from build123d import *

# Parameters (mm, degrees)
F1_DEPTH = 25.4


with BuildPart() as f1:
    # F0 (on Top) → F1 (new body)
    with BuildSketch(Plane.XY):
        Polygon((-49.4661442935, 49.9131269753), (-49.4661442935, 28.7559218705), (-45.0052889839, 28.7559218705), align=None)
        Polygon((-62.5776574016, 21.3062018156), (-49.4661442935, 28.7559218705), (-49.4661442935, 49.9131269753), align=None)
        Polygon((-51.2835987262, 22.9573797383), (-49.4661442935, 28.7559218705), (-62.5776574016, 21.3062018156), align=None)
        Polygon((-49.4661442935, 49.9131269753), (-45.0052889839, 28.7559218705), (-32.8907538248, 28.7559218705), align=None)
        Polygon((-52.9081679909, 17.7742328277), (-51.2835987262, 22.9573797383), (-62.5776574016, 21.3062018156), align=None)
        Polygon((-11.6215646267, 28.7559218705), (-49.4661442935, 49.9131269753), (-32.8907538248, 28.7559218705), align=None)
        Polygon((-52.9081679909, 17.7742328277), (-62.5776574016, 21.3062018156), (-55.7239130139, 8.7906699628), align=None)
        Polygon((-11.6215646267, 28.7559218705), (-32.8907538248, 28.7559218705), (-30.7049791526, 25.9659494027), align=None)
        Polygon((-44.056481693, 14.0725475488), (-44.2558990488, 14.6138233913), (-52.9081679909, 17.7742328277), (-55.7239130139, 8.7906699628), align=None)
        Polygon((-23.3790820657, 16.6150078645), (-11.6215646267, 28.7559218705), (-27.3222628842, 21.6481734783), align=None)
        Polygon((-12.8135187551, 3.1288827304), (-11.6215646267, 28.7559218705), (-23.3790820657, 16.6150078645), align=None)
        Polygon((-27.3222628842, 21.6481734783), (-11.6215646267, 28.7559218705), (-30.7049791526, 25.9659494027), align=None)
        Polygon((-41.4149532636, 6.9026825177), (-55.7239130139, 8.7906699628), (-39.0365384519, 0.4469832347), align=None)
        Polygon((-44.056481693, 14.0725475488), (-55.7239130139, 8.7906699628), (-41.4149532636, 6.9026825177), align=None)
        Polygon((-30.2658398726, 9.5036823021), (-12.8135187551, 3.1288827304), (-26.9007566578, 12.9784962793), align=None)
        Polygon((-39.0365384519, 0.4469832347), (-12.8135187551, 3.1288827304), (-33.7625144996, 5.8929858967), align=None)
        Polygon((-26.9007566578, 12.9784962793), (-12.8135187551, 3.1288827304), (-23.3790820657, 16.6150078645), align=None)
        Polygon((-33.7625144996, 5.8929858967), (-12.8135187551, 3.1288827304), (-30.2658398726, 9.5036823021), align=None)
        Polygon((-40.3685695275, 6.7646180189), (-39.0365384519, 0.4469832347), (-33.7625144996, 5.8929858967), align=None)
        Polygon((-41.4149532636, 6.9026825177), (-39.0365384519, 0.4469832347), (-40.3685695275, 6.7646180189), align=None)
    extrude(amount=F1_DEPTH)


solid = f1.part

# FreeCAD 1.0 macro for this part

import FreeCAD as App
import Part
import Sketcher
from FreeCAD import Vector
Q = App.Units.Quantity

doc = App.newDocument("Part")
body = doc.addObject("PartDesign::Body", "Body")

sketch1 = body.newObject("Sketcher::SketchObject", "Sketch")
sketch1.AttachmentSupport = (doc.getObject("XY_Plane"), [""])
sketch1.MapMode = "FlatFace"
sketch1.addGeometry([
    Part.LineSegment(Vector(-55.723913, 8.79067, 0), Vector(-39.036538, 0.446983, 0)),
    Part.LineSegment(Vector(-39.036538, 0.446983, 0), Vector(-12.813519, 3.128883, 0)),
    Part.LineSegment(Vector(-12.813519, 3.128883, 0), Vector(-11.621565, 28.755922, 0)),
    Part.LineSegment(Vector(-11.621565, 28.755922, 0), Vector(-49.466144, 49.913127, 0)),
    Part.LineSegment(Vector(-49.466144, 49.913127, 0), Vector(-62.577657, 21.306202, 0)),
    Part.LineSegment(Vector(-62.577657, 21.306202, 0), Vector(-55.723913, 8.79067, 0)),
    Part.LineSegment(Vector(-33.762515, 5.892986, 0), Vector(-40.36857, 6.764618, 0)),
    Part.LineSegment(Vector(-40.36857, 6.764618, 0), Vector(-41.414953, 6.902683, 0)),
    Part.LineSegment(Vector(-41.414953, 6.902683, 0), Vector(-44.056482, 14.072548, 0)),
    Part.LineSegment(Vector(-44.056482, 14.072548, 0), Vector(-44.255899, 14.613823, 0)),
    Part.LineSegment(Vector(-44.255899, 14.613823, 0), Vector(-52.908168, 17.774233, 0)),
    Part.LineSegment(Vector(-52.908168, 17.774233, 0), Vector(-51.283599, 22.95738, 0)),
    Part.LineSegment(Vector(-51.283599, 22.95738, 0), Vector(-49.466144, 28.755922, 0)),
    Part.LineSegment(Vector(-49.466144, 28.755922, 0), Vector(-32.890754, 28.755922, 0)),
    Part.LineSegment(Vector(-32.890754, 28.755922, 0), Vector(-30.704979, 25.965949, 0)),
    Part.LineSegment(Vector(-30.704979, 25.965949, 0), Vector(-27.322263, 21.648173, 0)),
    Part.LineSegment(Vector(-27.322263, 21.648173, 0), Vector(-23.379082, 16.615008, 0)),
    Part.LineSegment(Vector(-23.379082, 16.615008, 0), Vector(-30.26584, 9.503682, 0)),
    Part.LineSegment(Vector(-30.26584, 9.503682, 0), Vector(-33.762515, 5.892986, 0)),
], False)
sketch1.addConstraint([
    Sketcher.Constraint("Coincident", 0, 2, 1, 1),
    Sketcher.Constraint("Coincident", 1, 2, 2, 1),
    Sketcher.Constraint("Coincident", 2, 2, 3, 1),
    Sketcher.Constraint("Coincident", 3, 2, 4, 1),
    Sketcher.Constraint("Coincident", 4, 2, 5, 1),
    Sketcher.Constraint("Coincident", 5, 2, 0, 1),
    Sketcher.Constraint("Coincident", 6, 2, 7, 1),
    Sketcher.Constraint("Coincident", 7, 2, 8, 1),
    Sketcher.Constraint("Coincident", 8, 2, 9, 1),
    Sketcher.Constraint("Coincident", 9, 2, 10, 1),
    Sketcher.Constraint("Coincident", 10, 2, 11, 1),
    Sketcher.Constraint("Coincident", 11, 2, 12, 1),
    Sketcher.Constraint("Coincident", 12, 2, 13, 1),
    Sketcher.Constraint("Coincident", 13, 2, 14, 1),
    Sketcher.Constraint("Coincident", 14, 2, 15, 1),
    Sketcher.Constraint("Coincident", 15, 2, 16, 1),
    Sketcher.Constraint("Coincident", 16, 2, 17, 1),
    Sketcher.Constraint("Coincident", 17, 2, 18, 1),
    Sketcher.Constraint("Coincident", 18, 2, 6, 1),
    Sketcher.Constraint("Horizontal", 13),
    Sketcher.Constraint("Parallel", 6, 7),
    Sketcher.Constraint("Parallel", 8, 9),
    Sketcher.Constraint("Parallel", 11, 12),
    Sketcher.Constraint("Parallel", 14, 15),
    Sketcher.Constraint("Parallel", 15, 16),
    Sketcher.Constraint("Parallel", 17, 18),
    Sketcher.Constraint("Horizontal", 2, 2, 12, 2),
    Sketcher.Constraint("Vertical", 3, 2, 12, 2),
    Sketcher.Constraint("DistanceX", 13, 1, 13, 2, Q("16.57539 mm")),
    Sketcher.Constraint("DistanceY", -1, 1, 4, 2, Q("21.306202 mm")),
    Sketcher.Constraint("DistanceX", 9, 2, -1, 1, Q("44.255899 mm")),
    Sketcher.Constraint("DistanceX", 11, 2, -1, 1, Q("51.283599 mm")),
    Sketcher.Constraint("DistanceY", 0, 2, 1, 2, Q("2.681899 mm")),
    Sketcher.Constraint("DistanceY", 0, 2, 7, 2, Q("6.455699 mm")),
    Sketcher.Constraint("DistanceY", 9, 2, 12, 2, Q("14.142098 mm")),
    Sketcher.Constraint("DistanceY", 8, 2, 14, 2, Q("11.893402 mm")),
    Sketcher.Constraint("DistanceX", 15, 2, 2, 2, Q("15.700698 mm")),
    Sketcher.Constraint("DistanceY", 7, 2, 17, 2, Q("2.601 mm")),
    Sketcher.Constraint("DistanceX", 0, 2, 17, 2, Q("8.770699 mm")),
    Sketcher.Constraint("Distance", 0, Q("18.657052 mm")),
    Sketcher.Constraint("Distance", 5, Q("14.26928 mm")),
    Sketcher.Constraint("Distance", 6, Q("6.66331 mm")),
    Sketcher.Constraint("Distance", 11, Q("5.43178 mm")),
    Sketcher.Constraint("Distance", 14, Q("3.544229 mm")),
    Sketcher.Constraint("Distance", 16, Q("6.393859 mm")),
    Sketcher.Constraint("DistanceX", 0, 2, -1, 1, Q("39.036538 mm")),
    Sketcher.Constraint("DistanceX", 1, 2, -1, 1, Q("12.813519 mm")),
    Sketcher.Constraint("DistanceY", -1, 1, 2, 2, Q("28.755922 mm")),
    Sketcher.Constraint("DistanceY", -1, 1, 5, 2, Q("8.79067 mm")),
    Sketcher.Constraint("DistanceX", 6, 2, -1, 1, Q("40.36857 mm")),
    Sketcher.Constraint("DistanceY", -1, 1, 6, 2, Q("6.764618 mm")),
    Sketcher.Constraint("DistanceX", 8, 2, -1, 1, Q("44.056482 mm")),
    Sketcher.Constraint("DistanceY", -1, 1, 11, 2, Q("22.95738 mm")),
    Sketcher.Constraint("DistanceX", 14, 2, -1, 1, Q("30.704979 mm")),
    Sketcher.Constraint("DistanceY", -1, 1, 14, 2, Q("25.965949 mm")),
    Sketcher.Constraint("DistanceY", 1, 2, 2, 2, Q("25.627039 mm")),
    Sketcher.Constraint("Distance", 3, Q("43.357116 mm")),
])
pad1 = body.newObject("PartDesign::Pad", "Pad")
pad1.Profile = sketch1
pad1.Length = Q("1 in")

doc.recompute()
